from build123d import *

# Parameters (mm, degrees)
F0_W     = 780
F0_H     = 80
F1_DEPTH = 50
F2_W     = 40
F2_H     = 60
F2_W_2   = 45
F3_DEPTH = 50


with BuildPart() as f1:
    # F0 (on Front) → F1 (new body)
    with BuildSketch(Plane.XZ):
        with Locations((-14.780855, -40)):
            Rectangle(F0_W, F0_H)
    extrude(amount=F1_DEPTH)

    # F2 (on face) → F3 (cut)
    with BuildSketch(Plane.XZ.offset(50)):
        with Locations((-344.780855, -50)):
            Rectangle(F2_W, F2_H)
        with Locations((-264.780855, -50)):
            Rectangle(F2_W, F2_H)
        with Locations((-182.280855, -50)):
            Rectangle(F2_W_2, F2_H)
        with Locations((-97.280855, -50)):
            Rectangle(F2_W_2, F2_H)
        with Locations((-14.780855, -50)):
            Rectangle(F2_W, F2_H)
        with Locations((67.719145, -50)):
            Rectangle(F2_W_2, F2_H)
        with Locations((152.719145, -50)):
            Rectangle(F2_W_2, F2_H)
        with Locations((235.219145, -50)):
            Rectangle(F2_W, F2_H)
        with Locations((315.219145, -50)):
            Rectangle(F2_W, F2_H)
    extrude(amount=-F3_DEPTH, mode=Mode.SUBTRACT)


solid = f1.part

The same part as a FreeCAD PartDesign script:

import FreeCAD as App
import Part
import Sketcher
from FreeCAD import Vector

doc = App.newDocument("Part")
body = doc.addObject("PartDesign::Body", "Body")

# Sketch on XZ plane
sketch1 = body.newObject("Sketcher::SketchObject", "Sketch")
sketch1.AttachmentSupport = (doc.getObject("XZ_Plane"), [""])
sketch1.MapMode = "FlatFace"
sketch1.addGeometry([
    Part.LineSegment(Vector(-405, 0, 0), Vector(-405, -80, 0)),
    Part.LineSegment(Vector(-405, -80, 0), Vector(375, -80, 0)),
    Part.LineSegment(Vector(375, -80, 0), Vector(375, 0, 0)),
    Part.LineSegment(Vector(375, 0, 0), Vector(-405, 0, 0)),
], False)
sketch1.addConstraint([
    Sketcher.Constraint("Coincident", 0, 2, 1, 1),
    Sketcher.Constraint("Coincident", 1, 2, 2, 1),
    Sketcher.Constraint("Coincident", 2, 2, 3, 1),
    Sketcher.Constraint("Coincident", 3, 2, 0, 1),
    Sketcher.Constraint("Vertical", 0),
    Sketcher.Constraint("Horizontal", 1),
    Sketcher.Constraint("Vertical", 2),
    Sketcher.Constraint("Horizontal", 3),
    Sketcher.Constraint("PointOnObject", 2, 2, -1),
    Sketcher.Constraint("DistanceX", 1, 1, 1, 2, 780.0),
    Sketcher.Constraint("DistanceY", 0, 2, 0, 1, 80.0),
    Sketcher.Constraint("DistanceX", 0, 2, -1, 1, 404.780855),
])
pad1 = body.newObject("PartDesign::Pad", "Pad")
pad1.Profile = sketch1
pad1.Length = 50

# Sketch on XZ plane
sketch2 = body.newObject("Sketcher::SketchObject", "Sketch001")
sketch2.AttachmentSupport = (doc.getObject("XZ_Plane"), [""])
sketch2.MapMode = "FlatFace"
sketch2.AttachmentOffset = App.Placement(Vector(0, 0, 50), App.Rotation())
sketch2.addGeometry([
    Part.LineSegment(Vector(-365, -20, 0), Vector(-365, -80, 0)),  # 0
    Part.LineSegment(Vector(-365, -80, 0), Vector(-325, -80, 0)),  # 1
    Part.LineSegment(Vector(-325, -80, 0), Vector(-325, -20, 0)),  # 2
    Part.LineSegment(Vector(-325, -20, 0), Vector(-365, -20, 0)),  # 3
    Part.LineSegment(Vector(-285, -20, 0), Vector(-285, -80, 0)),  # 4
    Part.LineSegment(Vector(-285, -80, 0), Vector(-245, -80, 0)),  # 5
    Part.LineSegment(Vector(-245, -80, 0), Vector(-245, -20, 0)),  # 6
    Part.LineSegment(Vector(-245, -20, 0), Vector(-285, -20, 0)),  # 7
    Part.LineSegment(Vector(-205, -20, 0), Vector(-205, -80, 0)),  # 8
    Part.LineSegment(Vector(-205, -80, 0), Vector(-160, -80, 0)),  # 9
    Part.LineSegment(Vector(-160, -80, 0), Vector(-160, -20, 0)),  # 10
    Part.LineSegment(Vector(-160, -20, 0), Vector(-205, -20, 0)),  # 11
    Part.LineSegment(Vector(-120, -20, 0), Vector(-120, -80, 0)),  # 12
    Part.LineSegment(Vector(-120, -80, 0), Vector(-75, -80, 0)),  # 13
    Part.LineSegment(Vector(-75, -80, 0), Vector(-75, -20, 0)),  # 14
    Part.LineSegment(Vector(-75, -20, 0), Vector(-120, -20, 0)),  # 15
    Part.LineSegment(Vector(-35, -20, 0), Vector(-35, -80, 0)),  # 16
    Part.LineSegment(Vector(-35, -80, 0), Vector(5, -80, 0)),  # 17
    Part.LineSegment(Vector(5, -80, 0), Vector(5, -20, 0)),  # 18
    Part.LineSegment(Vector(5, -20, 0), Vector(-35, -20, 0)),  # 19
    Part.LineSegment(Vector(45, -20, 0), Vector(45, -80, 0)),  # 20
    Part.LineSegment(Vector(45, -80, 0), Vector(90, -80, 0)),  # 21
    Part.LineSegment(Vector(90, -80, 0), Vector(90, -20, 0)),  # 22
    Part.LineSegment(Vector(90, -20, 0), Vector(45, -20, 0)),  # 23
    Part.LineSegment(Vector(130, -20, 0), Vector(130, -80, 0)),  # 24
    Part.LineSegment(Vector(130, -80, 0), Vector(175, -80, 0)),  # 25
    Part.LineSegment(Vector(175, -80, 0), Vector(175, -20, 0)),  # 26
    Part.LineSegment(Vector(175, -20, 0), Vector(130, -20, 0)),  # 27
    Part.LineSegment(Vector(215, -20, 0), Vector(215, -80, 0)),  # 28
    Part.LineSegment(Vector(215, -80, 0), Vector(255, -80, 0)),  # 29
    Part.LineSegment(Vector(255, -80, 0), Vector(255, -20, 0)),  # 30
    Part.LineSegment(Vector(255, -20, 0), Vector(215, -20, 0)),  # 31
    Part.LineSegment(Vector(295, -20, 0), Vector(295, -80, 0)),  # 32
    Part.LineSegment(Vector(295, -80, 0), Vector(335, -80, 0)),  # 33
    Part.LineSegment(Vector(335, -80, 0), Vector(335, -20, 0)),  # 34
    Part.LineSegment(Vector(335, -20, 0), Vector(295, -20, 0)),  # 35
], False)
sketch2.addConstraint([
    Sketcher.Constraint("Coincident", 0, 2, 1, 1),
    Sketcher.Constraint("Coincident", 1, 2, 2, 1),
    Sketcher.Constraint("Coincident", 2, 2, 3, 1),
    Sketcher.Constraint("Coincident", 3, 2, 0, 1),
    Sketcher.Constraint("Coincident", 4, 2, 5, 1),
    Sketcher.Constraint("Coincident", 5, 2, 6, 1),
    Sketcher.Constraint("Coincident", 6, 2, 7, 1),
    Sketcher.Constraint("Coincident", 7, 2, 4, 1),
    Sketcher.Constraint("Coincident", 8, 2, 9, 1),
    Sketcher.Constraint("Coincident", 9, 2, 10, 1),
    Sketcher.Constraint("Coincident", 10, 2, 11, 1),
    Sketcher.Constraint("Coincident", 11, 2, 8, 1),
    Sketcher.Constraint("Coincident", 12, 2, 13, 1),
    Sketcher.Constraint("Coincident", 13, 2, 14, 1),
    Sketcher.Constraint("Coincident", 14, 2, 15, 1),
    Sketcher.Constraint("Coincident", 15, 2, 12, 1),
    Sketcher.Constraint("Coincident", 16, 2, 17, 1),
    Sketcher.Constraint("Coincident", 17, 2, 18, 1),
    Sketcher.Constraint("Coincident", 18, 2, 19, 1),
    Sketcher.Constraint("Coincident", 19, 2, 16, 1),
    Sketcher.Constraint("Coincident", 20, 2, 21, 1),
    Sketcher.Constraint("Coincident", 21, 2, 22, 1),
    Sketcher.Constraint("Coincident", 22, 2, 23, 1),
    Sketcher.Constraint("Coincident", 23, 2, 20, 1),
    Sketcher.Constraint("Coincident", 24, 2, 25, 1),
    Sketcher.Constraint("Coincident", 25, 2, 26, 1),
    Sketcher.Constraint("Coincident", 26, 2, 27, 1),
    Sketcher.Constraint("Coincident", 27, 2, 24, 1),
    Sketcher.Constraint("Coincident", 28, 2, 29, 1),
    Sketcher.Constraint("Coincident", 29, 2, 30, 1),
    Sketcher.Constraint("Coincident", 30, 2, 31, 1),
    Sketcher.Constraint("Coincident", 31, 2, 28, 1),
    Sketcher.Constraint("Coincident", 32, 2, 33, 1),
    Sketcher.Constraint("Coincident", 33, 2, 34, 1),
    Sketcher.Constraint("Coincident", 34, 2, 35, 1),
    Sketcher.Constraint("Coincident", 35, 2, 32, 1),
    Sketcher.Constraint("Vertical", 0),
    Sketcher.Constraint("Horizontal", 1),
    Sketcher.Constraint("Vertical", 2),
    Sketcher.Constraint("Horizontal", 3),
    Sketcher.Constraint("Vertical", 4),
    Sketcher.Constraint("Horizontal", 5),
    Sketcher.Constraint("Vertical", 6),
    Sketcher.Constraint("Horizontal", 7),
    Sketcher.Constraint("Vertical", 8),
    Sketcher.Constraint("Horizontal", 9),
    Sketcher.Constraint("Vertical", 10),
    Sketcher.Constraint("Horizontal", 11),
    Sketcher.Constraint("Vertical", 12),
    Sketcher.Constraint("Horizontal", 13),
    Sketcher.Constraint("Vertical", 14),
    Sketcher.Constraint("Horizontal", 15),
    Sketcher.Constraint("Vertical", 16),
    Sketcher.Constraint("Horizontal", 17),
    Sketcher.Constraint("Vertical", 18),
    Sketcher.Constraint("Horizontal", 19),
    Sketcher.Constraint("Vertical", 20),
    Sketcher.Constraint("Horizontal", 21),
    Sketcher.Constraint("Vertical", 22),
    Sketcher.Constraint("Horizontal", 23),
    Sketcher.Constraint("Vertical", 24),
    Sketcher.Constraint("Horizontal", 25),
    Sketcher.Constraint("Vertical", 26),
    Sketcher.Constraint("Horizontal", 27),
    Sketcher.Constraint("Vertical", 28),
    Sketcher.Constraint("Horizontal", 29),
    Sketcher.Constraint("Vertical", 30),
    Sketcher.Constraint("Horizontal", 31),
    Sketcher.Constraint("Vertical", 32),
    Sketcher.Constraint("Horizontal", 33),
    Sketcher.Constraint("Vertical", 34),
    Sketcher.Constraint("Horizontal", 35),
    Sketcher.Constraint("Horizontal", 1, 2, 4, 2),
    Sketcher.Constraint("Horizontal", 3, 2, 6, 2),
    Sketcher.Constraint("Horizontal", 5, 2, 8, 2),
    Sketcher.Constraint("Horizontal", 7, 2, 10, 2),
    Sketcher.Constraint("Horizontal", 9, 2, 12, 2),
    Sketcher.Constraint("Horizontal", 11, 2, 14, 2),
    Sketcher.Constraint("Horizontal", 13, 2, 16, 2),
    Sketcher.Constraint("Horizontal", 15, 2, 18, 2),
    Sketcher.Constraint("Horizontal", 17, 2, 20, 2),
    Sketcher.Constraint("Horizontal", 19, 2, 22, 2),
    Sketcher.Constraint("Horizontal", 21, 2, 24, 2),
    Sketcher.Constraint("Horizontal", 23, 2, 26, 2),
    Sketcher.Constraint("Horizontal", 25, 2, 28, 2),
    Sketcher.Constraint("Horizontal", 27, 2, 30, 2),
    Sketcher.Constraint("Horizontal", 29, 2, 32, 2),
    Sketcher.Constraint("Horizontal", 31, 2, 34, 2),
    Sketcher.Constraint("Equal", 3, 5),
    Sketcher.Constraint("Equal", 11, 13),
    Sketcher.Constraint("Equal", 7, 17),
    Sketcher.Constraint("Equal", 15, 21),
    Sketcher.Constraint("Equal", 23, 25),
    Sketcher.Constraint("Equal", 19, 29),
    Sketcher.Constraint("Equal", 31, 33),
    Sketcher.Constraint("DistanceX", 1, 1, 1, 2, 40.0),
    Sketcher.Constraint("DistanceX", 9, 1, 9, 2, 45.0),
    Sketcher.Constraint("DistanceY", 0, 2, 0, 1, 60.0),
    Sketcher.Constraint("DistanceY", 0, 2, -1, 1, 80.0),
    Sketcher.Constraint("DistanceX", 1, 2, 4, 2, 40.0),
    Sketcher.Constraint("DistanceX", 5, 2, 8, 2, 40.0),
    Sketcher.Constraint("DistanceX", 9, 2, 12, 2, 40.0),
    Sketcher.Constraint("DistanceX", 13, 2, 16, 2, 40.0),
    Sketcher.Constraint("DistanceX", 17, 2, 20, 2, 40.0),
    Sketcher.Constraint("DistanceX", 21, 2, 24, 2, 40.0),
    Sketcher.Constraint("DistanceX", 25, 2, 28, 2, 40.0),
    Sketcher.Constraint("DistanceX", 29, 2, 32, 2, 40.0),
    Sketcher.Constraint("DistanceX", 0, 2, -1, 1, 364.780855),
])
pocket1 = body.newObject("PartDesign::Pocket", "Pocket")
pocket1.Profile = sketch2
pocket1.Length = 50

doc.recompute()
